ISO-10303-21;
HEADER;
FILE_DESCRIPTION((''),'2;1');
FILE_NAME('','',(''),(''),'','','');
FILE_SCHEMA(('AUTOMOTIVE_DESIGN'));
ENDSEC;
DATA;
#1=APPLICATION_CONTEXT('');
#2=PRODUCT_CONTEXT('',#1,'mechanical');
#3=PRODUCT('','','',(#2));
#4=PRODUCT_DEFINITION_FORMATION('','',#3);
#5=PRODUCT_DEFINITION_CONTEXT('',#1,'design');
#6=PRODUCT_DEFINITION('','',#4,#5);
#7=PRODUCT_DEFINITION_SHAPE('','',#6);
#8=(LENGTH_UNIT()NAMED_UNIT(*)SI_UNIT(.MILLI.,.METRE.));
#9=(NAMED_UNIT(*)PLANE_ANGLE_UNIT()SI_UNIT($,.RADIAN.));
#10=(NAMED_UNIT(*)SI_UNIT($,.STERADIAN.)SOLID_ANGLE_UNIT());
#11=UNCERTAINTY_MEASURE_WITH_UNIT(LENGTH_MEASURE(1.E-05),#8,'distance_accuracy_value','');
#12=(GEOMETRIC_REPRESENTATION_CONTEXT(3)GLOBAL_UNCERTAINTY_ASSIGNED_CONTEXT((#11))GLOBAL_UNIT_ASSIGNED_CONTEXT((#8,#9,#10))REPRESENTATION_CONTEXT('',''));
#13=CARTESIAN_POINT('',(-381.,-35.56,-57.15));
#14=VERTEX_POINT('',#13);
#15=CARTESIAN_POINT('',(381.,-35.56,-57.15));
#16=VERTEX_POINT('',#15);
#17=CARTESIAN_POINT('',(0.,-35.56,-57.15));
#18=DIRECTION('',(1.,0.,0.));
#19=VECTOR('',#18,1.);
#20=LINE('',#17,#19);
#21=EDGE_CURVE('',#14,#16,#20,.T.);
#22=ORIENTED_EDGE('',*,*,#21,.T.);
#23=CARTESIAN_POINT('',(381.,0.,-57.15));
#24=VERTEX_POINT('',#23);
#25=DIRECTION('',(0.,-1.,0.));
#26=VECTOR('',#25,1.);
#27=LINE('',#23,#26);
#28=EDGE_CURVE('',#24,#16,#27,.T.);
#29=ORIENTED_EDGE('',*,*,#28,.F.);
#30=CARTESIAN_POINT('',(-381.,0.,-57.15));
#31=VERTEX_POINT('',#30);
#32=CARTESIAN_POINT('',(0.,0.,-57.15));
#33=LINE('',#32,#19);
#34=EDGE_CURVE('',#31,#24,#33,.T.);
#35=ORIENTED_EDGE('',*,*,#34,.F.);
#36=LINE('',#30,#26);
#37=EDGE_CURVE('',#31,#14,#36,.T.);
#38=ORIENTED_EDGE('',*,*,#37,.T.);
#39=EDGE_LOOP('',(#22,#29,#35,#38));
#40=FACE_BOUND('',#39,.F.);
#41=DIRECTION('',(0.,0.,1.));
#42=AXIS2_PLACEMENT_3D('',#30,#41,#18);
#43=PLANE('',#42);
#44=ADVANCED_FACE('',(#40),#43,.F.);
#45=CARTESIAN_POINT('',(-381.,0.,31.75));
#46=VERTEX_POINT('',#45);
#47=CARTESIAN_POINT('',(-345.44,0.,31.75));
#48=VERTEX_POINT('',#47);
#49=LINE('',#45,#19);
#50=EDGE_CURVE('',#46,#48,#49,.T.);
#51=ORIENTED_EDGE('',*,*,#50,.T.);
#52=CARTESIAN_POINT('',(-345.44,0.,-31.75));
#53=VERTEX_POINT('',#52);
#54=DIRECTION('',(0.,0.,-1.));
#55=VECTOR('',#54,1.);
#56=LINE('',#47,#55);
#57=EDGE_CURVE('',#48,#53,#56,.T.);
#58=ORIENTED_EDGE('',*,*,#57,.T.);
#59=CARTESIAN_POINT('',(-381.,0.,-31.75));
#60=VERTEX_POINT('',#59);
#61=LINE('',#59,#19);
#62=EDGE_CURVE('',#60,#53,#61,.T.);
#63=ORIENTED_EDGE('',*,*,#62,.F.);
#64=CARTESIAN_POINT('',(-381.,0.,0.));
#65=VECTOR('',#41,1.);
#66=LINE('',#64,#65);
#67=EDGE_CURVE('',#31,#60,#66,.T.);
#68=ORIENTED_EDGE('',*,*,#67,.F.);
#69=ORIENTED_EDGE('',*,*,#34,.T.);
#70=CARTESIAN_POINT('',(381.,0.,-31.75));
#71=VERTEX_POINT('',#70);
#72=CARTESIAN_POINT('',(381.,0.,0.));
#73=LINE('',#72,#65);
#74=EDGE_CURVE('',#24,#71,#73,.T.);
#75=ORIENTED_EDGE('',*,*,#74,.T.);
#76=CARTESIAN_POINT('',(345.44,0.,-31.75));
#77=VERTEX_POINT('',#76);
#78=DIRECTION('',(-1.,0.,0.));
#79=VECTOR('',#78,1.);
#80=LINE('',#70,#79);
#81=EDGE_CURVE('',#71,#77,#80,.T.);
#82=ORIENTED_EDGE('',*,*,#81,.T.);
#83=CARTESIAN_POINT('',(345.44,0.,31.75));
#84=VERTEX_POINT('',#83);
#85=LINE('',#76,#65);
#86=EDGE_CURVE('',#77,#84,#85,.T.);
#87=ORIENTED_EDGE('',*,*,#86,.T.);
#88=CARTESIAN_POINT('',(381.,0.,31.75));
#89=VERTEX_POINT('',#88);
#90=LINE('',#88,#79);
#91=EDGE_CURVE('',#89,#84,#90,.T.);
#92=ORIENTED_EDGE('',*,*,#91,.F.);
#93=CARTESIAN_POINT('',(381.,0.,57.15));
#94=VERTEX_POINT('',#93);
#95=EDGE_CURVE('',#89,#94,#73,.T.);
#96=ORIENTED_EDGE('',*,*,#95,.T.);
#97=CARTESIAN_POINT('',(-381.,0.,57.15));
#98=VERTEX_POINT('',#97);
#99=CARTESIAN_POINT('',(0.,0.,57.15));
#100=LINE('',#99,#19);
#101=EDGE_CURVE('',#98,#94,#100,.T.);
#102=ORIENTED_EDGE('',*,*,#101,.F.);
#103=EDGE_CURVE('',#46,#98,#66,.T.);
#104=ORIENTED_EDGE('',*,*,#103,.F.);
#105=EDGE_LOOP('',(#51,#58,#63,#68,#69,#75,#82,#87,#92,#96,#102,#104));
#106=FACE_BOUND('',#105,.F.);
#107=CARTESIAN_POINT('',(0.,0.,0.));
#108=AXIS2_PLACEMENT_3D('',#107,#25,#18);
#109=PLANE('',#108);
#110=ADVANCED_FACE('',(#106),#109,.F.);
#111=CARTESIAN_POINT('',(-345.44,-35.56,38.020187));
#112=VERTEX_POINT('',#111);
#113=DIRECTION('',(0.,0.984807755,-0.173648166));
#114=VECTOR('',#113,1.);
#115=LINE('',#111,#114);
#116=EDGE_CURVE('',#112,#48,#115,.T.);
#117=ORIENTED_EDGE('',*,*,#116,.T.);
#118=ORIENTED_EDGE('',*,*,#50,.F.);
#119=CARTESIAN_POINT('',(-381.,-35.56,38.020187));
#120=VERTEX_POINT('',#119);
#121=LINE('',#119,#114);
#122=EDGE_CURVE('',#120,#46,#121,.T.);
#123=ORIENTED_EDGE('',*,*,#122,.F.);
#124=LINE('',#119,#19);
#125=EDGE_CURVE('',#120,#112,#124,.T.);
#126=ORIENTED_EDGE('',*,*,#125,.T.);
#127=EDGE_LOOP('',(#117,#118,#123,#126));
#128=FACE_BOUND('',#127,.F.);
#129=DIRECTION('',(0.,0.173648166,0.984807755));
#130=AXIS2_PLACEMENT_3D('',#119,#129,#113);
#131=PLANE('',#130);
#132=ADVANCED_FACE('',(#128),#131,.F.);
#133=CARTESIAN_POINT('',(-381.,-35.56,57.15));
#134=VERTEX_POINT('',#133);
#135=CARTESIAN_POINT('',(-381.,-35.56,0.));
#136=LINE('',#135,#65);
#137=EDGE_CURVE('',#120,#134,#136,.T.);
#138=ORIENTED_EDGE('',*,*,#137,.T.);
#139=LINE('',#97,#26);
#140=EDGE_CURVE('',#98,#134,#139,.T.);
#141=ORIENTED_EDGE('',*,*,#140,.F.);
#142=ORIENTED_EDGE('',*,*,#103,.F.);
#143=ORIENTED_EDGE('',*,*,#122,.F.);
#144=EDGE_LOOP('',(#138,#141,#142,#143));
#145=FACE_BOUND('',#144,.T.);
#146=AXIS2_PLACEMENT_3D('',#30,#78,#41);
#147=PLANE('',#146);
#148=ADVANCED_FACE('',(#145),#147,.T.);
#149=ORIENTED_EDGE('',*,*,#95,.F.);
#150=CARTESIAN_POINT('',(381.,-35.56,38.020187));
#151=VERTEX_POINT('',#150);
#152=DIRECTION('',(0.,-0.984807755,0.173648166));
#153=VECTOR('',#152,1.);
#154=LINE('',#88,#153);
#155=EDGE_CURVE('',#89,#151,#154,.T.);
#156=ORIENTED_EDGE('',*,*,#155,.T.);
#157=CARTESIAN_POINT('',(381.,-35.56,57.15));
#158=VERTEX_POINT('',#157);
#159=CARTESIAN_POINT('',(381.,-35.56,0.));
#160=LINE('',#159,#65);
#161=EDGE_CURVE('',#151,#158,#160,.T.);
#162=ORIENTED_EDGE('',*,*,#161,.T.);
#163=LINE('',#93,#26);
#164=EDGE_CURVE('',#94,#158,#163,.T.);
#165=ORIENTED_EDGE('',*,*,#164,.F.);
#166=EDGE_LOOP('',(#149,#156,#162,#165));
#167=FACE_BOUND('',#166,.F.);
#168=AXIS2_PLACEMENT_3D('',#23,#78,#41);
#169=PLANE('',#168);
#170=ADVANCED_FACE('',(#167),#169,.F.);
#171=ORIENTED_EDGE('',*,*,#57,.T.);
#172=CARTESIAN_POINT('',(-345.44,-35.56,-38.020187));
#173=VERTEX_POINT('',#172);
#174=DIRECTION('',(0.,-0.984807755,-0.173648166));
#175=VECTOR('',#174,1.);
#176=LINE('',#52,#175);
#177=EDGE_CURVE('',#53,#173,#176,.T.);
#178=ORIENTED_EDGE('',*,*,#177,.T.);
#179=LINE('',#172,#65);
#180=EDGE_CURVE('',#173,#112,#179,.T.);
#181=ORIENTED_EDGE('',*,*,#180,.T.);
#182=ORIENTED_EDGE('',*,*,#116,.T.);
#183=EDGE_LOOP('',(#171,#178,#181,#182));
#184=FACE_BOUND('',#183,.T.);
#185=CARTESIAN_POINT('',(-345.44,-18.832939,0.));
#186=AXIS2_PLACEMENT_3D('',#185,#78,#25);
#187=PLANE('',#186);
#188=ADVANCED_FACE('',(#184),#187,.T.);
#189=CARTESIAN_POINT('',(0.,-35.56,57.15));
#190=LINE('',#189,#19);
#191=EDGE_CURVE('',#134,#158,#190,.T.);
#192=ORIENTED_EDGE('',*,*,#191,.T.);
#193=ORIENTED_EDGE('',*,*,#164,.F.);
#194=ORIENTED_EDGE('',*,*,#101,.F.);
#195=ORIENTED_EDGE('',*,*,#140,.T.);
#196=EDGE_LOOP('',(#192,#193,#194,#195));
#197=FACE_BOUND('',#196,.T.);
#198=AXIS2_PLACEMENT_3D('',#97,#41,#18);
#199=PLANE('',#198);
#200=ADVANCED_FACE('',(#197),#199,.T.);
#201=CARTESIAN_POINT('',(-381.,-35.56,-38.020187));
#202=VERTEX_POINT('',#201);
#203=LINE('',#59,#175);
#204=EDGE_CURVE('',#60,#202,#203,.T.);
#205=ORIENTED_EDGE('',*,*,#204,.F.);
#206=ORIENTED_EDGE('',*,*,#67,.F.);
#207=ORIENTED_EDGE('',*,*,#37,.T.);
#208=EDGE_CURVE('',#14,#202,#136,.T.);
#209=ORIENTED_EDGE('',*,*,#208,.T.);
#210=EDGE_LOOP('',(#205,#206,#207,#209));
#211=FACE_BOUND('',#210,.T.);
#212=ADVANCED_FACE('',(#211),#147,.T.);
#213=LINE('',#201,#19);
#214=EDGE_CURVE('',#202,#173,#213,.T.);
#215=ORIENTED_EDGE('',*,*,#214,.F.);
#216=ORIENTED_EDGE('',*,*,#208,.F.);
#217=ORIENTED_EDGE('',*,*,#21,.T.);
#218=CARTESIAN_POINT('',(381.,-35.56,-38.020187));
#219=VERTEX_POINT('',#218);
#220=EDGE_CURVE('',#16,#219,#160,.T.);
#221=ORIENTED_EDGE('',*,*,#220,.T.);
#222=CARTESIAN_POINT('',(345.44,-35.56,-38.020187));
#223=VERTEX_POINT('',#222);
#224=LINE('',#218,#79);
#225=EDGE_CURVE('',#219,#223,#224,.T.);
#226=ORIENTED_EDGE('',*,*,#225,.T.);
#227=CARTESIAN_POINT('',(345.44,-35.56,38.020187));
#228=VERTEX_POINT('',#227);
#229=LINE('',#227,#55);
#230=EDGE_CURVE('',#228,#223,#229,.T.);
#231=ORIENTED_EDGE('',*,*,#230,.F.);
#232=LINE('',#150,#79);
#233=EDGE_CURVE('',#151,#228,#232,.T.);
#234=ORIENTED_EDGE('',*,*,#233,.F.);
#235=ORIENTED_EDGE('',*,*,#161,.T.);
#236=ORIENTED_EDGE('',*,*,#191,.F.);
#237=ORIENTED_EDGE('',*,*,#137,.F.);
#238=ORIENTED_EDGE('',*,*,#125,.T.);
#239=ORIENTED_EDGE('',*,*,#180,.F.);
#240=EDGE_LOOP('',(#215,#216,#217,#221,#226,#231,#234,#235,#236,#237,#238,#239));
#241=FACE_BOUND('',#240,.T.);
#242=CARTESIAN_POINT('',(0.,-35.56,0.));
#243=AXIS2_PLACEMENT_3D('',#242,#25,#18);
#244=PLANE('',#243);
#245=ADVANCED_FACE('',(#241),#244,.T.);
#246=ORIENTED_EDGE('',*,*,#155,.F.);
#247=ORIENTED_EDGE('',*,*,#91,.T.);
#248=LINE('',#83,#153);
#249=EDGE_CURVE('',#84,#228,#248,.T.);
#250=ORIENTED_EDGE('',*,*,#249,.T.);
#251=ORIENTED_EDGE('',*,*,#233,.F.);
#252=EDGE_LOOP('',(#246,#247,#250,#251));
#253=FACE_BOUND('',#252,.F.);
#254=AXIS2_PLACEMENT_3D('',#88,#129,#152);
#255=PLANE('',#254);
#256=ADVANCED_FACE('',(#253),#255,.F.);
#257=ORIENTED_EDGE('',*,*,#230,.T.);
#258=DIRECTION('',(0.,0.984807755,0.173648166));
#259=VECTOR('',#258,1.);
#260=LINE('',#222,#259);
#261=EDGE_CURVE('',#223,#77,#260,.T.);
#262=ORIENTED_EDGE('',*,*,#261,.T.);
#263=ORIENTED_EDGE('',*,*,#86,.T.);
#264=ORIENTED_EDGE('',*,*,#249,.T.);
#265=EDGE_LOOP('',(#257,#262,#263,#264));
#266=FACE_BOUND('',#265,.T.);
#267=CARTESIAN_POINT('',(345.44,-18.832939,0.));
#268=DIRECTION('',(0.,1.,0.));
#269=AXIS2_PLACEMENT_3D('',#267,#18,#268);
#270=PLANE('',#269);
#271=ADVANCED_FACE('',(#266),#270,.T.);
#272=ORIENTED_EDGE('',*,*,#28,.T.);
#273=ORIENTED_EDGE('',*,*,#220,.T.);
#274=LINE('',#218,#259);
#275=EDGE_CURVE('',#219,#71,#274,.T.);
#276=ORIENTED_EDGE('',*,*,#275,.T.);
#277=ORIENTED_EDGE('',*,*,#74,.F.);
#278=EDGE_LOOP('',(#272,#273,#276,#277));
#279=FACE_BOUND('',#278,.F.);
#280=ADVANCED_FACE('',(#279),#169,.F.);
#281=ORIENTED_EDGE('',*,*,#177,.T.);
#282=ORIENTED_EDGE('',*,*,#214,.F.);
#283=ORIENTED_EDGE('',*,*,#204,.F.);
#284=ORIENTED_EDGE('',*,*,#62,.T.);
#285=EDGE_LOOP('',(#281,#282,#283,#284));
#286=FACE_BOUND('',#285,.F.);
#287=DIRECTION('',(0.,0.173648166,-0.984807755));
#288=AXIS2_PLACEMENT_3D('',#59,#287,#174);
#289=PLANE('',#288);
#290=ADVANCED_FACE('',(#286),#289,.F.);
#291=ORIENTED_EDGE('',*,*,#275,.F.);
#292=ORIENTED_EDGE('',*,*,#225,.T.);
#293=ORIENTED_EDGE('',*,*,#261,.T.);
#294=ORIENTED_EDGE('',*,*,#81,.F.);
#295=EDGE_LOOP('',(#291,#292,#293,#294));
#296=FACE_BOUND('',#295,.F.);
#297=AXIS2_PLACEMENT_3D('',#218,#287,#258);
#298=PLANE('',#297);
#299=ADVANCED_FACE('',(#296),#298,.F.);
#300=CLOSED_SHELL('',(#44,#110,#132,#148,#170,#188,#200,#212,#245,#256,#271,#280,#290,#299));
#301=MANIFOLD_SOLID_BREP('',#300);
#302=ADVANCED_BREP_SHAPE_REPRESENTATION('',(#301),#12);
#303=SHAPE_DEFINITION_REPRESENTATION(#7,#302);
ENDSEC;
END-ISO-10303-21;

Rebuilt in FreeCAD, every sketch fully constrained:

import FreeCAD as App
import Part
import Sketcher

V = App.Vector
Q = App.Units.Quantity


def add_polygon(sketch, points):
    """Adds a closed chain of lines whose ends are joined by coincident constraints."""
    first, n = sketch.GeometryCount, len(points)
    for a, b in zip(points, points[1:] + points[:1]):
        sketch.addGeometry(Part.LineSegment(App.Vector(*a, 0), App.Vector(*b, 0)), False)
    for i in range(n):
        sketch.addConstraint(Sketcher.Constraint("Coincident", first + i, 2, first + (i + 1) % n, 1))

doc = App.newDocument("Part")
body = doc.addObject("PartDesign::Body", "Body")

# Sketch on XZ plane
sketch1 = doc.addObject("Sketcher::SketchObject", "Sketch")
body.addObject(sketch1)
sketch1.AttachmentSupport = (doc.XZ_Plane, [""])
sketch1.MapMode = "FlatFace"
add_polygon(sketch1, [(-381, 57), (-381, -57), (381, -57), (381, 57)])  # lines 0-3
sketch1.addConstraint([
    Sketcher.Constraint("Vertical", 0),
    Sketcher.Constraint("Horizontal", 1),
    Sketcher.Constraint("Vertical", 2),
    Sketcher.Constraint("Horizontal", 3),
    Sketcher.Constraint("Symmetric", 0, 2, 2, 2, -1, 1),
    Sketcher.Constraint("DistanceX", 1, 1, 1, 2, Q("30 in")),
    Sketcher.Constraint("DistanceY", 0, 2, 0, 1, Q("4.5 in")),
])
pad1 = doc.addObject("PartDesign::Pad", "Pad")
body.addObject(pad1)
pad1.Profile = sketch1
pad1.Length = Q("1.4 in")

# Sketch on YZ plane
sketch2 = doc.addObject("Sketcher::SketchObject", "Sketch001")
body.addObject(sketch2)
sketch2.AttachmentSupport = (doc.YZ_Plane, [""])
sketch2.MapMode = "FlatFace"
sketch2.AttachmentOffset = App.Placement(V(0, 0, -15 * 25.4), App.Rotation())
add_polygon(sketch2, [(-36, 38), (0, 32), (0, -32), (-36, -38)])  # lines 0-3
sketch2.addConstraint([
    Sketcher.Constraint("Vertical", 1),
    Sketcher.Constraint("Vertical", 3),
    Sketcher.Constraint("Symmetric", 0, 2, 1, 2, -1, 1),
    Sketcher.Constraint("Equal", 0, 2),
    Sketcher.Constraint("DistanceY", 1, 2, 1, 1, Q("2.5 in")),
    Sketcher.Constraint("Angle", 0, Q("-9.999999 deg")),
    Sketcher.Constraint("DistanceX", 2, 2, -1, 1, Q("1.4 in")),
])
pocket1 = doc.addObject("PartDesign::Pocket", "Pocket")
body.addObject(pocket1)
pocket1.Profile = sketch2
pocket1.Length = Q("1.4 in")
pocket1.Reversed = True

# Sketch on YZ plane
sketch3 = doc.addObject("Sketcher::SketchObject", "Sketch002")
body.addObject(sketch3)
sketch3.AttachmentSupport = (doc.YZ_Plane, [""])
sketch3.MapMode = "FlatFace"
sketch3.AttachmentOffset = App.Placement(V(0, 0, 15 * 25.4), App.Rotation())
add_polygon(sketch3, [(0, 32), (-36, 38), (-36, -38), (0, -32)])  # lines 0-3
sketch3.addConstraint([
    Sketcher.Constraint("Vertical", 1),
    Sketcher.Constraint("Vertical", 3),
    Sketcher.Constraint("Symmetric", 2, 2, 3, 2, -1, 1),
    Sketcher.Constraint("Equal", 0, 2),
    Sketcher.Constraint("DistanceY", 3, 1, 3, 2, Q("2.5 in")),
    Sketcher.Constraint("Angle", 0, Q("170.000001 deg")),
    Sketcher.Constraint("DistanceX", 0, 2, -1, 1, Q("1.4 in")),
])
pocket2 = doc.addObject("PartDesign::Pocket", "Pocket001")
body.addObject(pocket2)
pocket2.Profile = sketch3
pocket2.Length = Q("1.4 in")

doc.recompute()
